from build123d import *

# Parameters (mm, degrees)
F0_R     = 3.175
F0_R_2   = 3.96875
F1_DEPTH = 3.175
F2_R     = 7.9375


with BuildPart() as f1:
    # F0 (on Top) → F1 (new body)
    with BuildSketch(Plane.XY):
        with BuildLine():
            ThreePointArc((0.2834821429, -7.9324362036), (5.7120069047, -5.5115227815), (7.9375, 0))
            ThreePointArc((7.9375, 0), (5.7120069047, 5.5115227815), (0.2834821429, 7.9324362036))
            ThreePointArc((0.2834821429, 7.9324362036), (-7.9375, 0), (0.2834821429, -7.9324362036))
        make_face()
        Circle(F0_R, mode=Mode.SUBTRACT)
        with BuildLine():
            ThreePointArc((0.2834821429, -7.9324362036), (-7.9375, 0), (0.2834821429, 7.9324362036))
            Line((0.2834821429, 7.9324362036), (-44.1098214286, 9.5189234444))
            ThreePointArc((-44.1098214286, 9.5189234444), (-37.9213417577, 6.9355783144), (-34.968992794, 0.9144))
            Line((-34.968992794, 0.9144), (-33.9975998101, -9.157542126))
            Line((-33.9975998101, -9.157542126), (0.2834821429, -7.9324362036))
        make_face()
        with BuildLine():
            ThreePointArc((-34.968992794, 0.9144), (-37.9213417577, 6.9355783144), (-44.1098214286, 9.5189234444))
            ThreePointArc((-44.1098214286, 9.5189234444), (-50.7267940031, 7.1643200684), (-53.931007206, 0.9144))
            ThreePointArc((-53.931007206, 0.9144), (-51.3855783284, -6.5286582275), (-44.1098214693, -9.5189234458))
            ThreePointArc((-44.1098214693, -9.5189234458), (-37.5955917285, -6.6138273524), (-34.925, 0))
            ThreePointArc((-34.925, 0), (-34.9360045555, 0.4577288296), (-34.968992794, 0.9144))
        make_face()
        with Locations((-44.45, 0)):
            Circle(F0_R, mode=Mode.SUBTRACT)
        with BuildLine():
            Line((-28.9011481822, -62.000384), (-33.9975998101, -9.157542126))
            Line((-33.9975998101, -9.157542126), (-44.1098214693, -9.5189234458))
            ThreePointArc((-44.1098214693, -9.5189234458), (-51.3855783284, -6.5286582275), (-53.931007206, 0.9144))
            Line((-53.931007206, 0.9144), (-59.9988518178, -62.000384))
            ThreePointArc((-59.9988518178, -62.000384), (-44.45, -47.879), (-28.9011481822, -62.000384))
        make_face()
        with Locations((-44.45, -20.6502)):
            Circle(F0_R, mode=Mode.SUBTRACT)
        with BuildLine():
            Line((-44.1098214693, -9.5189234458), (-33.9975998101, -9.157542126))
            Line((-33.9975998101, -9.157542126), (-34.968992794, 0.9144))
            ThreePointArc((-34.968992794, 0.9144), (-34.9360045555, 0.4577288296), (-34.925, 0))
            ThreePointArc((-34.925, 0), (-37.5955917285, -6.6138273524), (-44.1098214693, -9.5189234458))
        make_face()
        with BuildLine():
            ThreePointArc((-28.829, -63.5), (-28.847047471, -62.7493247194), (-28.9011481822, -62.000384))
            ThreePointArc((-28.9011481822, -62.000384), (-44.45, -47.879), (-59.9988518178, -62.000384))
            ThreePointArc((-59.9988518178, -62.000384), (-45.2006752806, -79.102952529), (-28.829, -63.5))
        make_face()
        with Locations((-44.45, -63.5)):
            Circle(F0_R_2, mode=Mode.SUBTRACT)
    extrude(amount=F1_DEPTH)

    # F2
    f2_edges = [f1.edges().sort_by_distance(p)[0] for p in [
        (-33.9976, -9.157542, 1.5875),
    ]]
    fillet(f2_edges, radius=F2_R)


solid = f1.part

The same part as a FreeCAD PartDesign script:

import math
import FreeCAD as App
import Part
import Sketcher
Q = App.Units.Quantity


def edges_at(feature, points):
    """Names of the edges that pass closest to the given points."""
    edges = feature.Shape.Edges
    near = lambda p: min(range(len(edges)), key=lambda i: edges[i].distToShape(Part.Vertex(*p))[0])
    return sorted({f"Edge{near(p) + 1}" for p in points})

doc = App.newDocument("Part")
body = doc.addObject("PartDesign::Body", "Body")

sketch1 = body.newObject("Sketcher::SketchObject", "Sketch")
sketch1.AttachmentSupport = (doc.getObject("XY_Plane"), [""])
sketch1.MapMode = "FlatFace"
sketch1.addGeometry([
    Part.LineSegment(App.Vector(-28.9, -62, 0), App.Vector(-34, -9.2, 0)),
    Part.LineSegment(App.Vector(-34, -9.2, 0), App.Vector(0.3, -7.9, 0)),
    Part.ArcOfCircle(Part.Circle(App.Vector(0, 0, 0), App.Vector(0, 0, 1), 7.9), math.radians(-88), math.radians(0)),
    Part.ArcOfCircle(Part.Circle(App.Vector(0, 0, 0), App.Vector(0, 0, 1), 7.9), math.radians(0), math.radians(88)),
    Part.LineSegment(App.Vector(0.3, 7.9, 0), App.Vector(-44.1, 9.5, 0)),
    Part.ArcOfCircle(Part.Circle(App.Vector(-44.5, 0, 0), App.Vector(0, 0, 1), 9.5), math.radians(88), math.radians(174)),
    Part.LineSegment(App.Vector(-53.9, 0.9, 0), App.Vector(-60, -62, 0)),
    Part.ArcOfCircle(Part.Circle(App.Vector(-44.5, -63.5, 0), App.Vector(0, 0, 1), 15.6), math.radians(174), math.radians(360)),
    Part.ArcOfCircle(Part.Circle(App.Vector(-44.5, -63.5, 0), App.Vector(0, 0, 1), 15.6), math.radians(0), math.radians(5.51)),
    Part.Circle(App.Vector(-44.5, -63.5, 0), App.Vector(0, 0, 1), 4),
    Part.Circle(App.Vector(-44.5, -20.7, 0), App.Vector(0, 0, 1), 3.2),
    Part.Circle(App.Vector(-44.5, 0, 0), App.Vector(0, 0, 1), 3.2),
    Part.Circle(App.Vector(0, 0, 0), App.Vector(0, 0, 1), 3.2),
], False)
sketch1.addConstraint([
    Sketcher.Constraint("Coincident", 0, 2, 1, 1),
    Sketcher.Constraint("Tangent", 1, 2, 2, 1),
    Sketcher.Constraint("Tangent", 2, 2, 3, 1),
    Sketcher.Constraint("Tangent", 3, 2, 4, 1),
    Sketcher.Constraint("Tangent", 4, 2, 5, 1),
    Sketcher.Constraint("Tangent", 5, 2, 6, 1),
    Sketcher.Constraint("Tangent", 6, 2, 7, 1),
    Sketcher.Constraint("Tangent", 7, 2, 8, 1),
    Sketcher.Constraint("Tangent", 8, 2, 0, 1),
    Sketcher.Constraint("Coincident", 2, 3, -1, 1),
    Sketcher.Constraint("Coincident", 12, 3, -1, 1),
    Sketcher.Constraint("Coincident", 9, 3, 7, 3),
    Sketcher.Constraint("Coincident", 11, 3, 5, 3),
    Sketcher.Constraint("Equal", 2, 3),
    Sketcher.Constraint("Equal", 7, 8),
    Sketcher.Constraint("Equal", 10, 11),
    Sketcher.Constraint("Equal", 11, 12),
    Sketcher.Constraint("PointOnObject", 5, 3, -1),
    Sketcher.Constraint("PointOnObject", 2, 2, -1),
    Sketcher.Constraint("Horizontal", 9, 3, 7, 2),
    Sketcher.Constraint("Horizontal", 6, 2, 8, 2),
    Sketcher.Constraint("Vertical", 5, 3, 7, 3),
    Sketcher.Constraint("Vertical", 9, 3, 10, 3),
    Sketcher.Constraint("Vertical", 1, 2, 3, 2),
    Sketcher.Constraint("Diameter", 10, Q("0.25 in")),
    Sketcher.Constraint("Diameter", 9, Q("0.3125 in")),
    Sketcher.Constraint("Radius", 2, Q("0.3125 in")),
    Sketcher.Constraint("Radius", 5, Q("0.375 in")),
    Sketcher.Constraint("Radius", 7, Q("0.615 in")),
    Sketcher.Constraint("DistanceY", 7, 3, -1, 1, Q("2.5 in")),
    Sketcher.Constraint("DistanceX", 5, 3, -1, 1, Q("1.75 in")),
    Sketcher.Constraint("DistanceY", 10, 3, -1, 1, Q("0.813 in")),
])
pad1 = body.newObject("PartDesign::Pad", "Pad")
pad1.Profile = sketch1
pad1.Length = Q("0.125 in")
doc.recompute()

fillet = body.newObject("PartDesign::Fillet", "Fillet")
fillet.Base = (pad1, edges_at(pad1, [(-33.998, -9.158, 1.587)]))
fillet.Radius = Q("0.3125 in")

doc.recompute()
